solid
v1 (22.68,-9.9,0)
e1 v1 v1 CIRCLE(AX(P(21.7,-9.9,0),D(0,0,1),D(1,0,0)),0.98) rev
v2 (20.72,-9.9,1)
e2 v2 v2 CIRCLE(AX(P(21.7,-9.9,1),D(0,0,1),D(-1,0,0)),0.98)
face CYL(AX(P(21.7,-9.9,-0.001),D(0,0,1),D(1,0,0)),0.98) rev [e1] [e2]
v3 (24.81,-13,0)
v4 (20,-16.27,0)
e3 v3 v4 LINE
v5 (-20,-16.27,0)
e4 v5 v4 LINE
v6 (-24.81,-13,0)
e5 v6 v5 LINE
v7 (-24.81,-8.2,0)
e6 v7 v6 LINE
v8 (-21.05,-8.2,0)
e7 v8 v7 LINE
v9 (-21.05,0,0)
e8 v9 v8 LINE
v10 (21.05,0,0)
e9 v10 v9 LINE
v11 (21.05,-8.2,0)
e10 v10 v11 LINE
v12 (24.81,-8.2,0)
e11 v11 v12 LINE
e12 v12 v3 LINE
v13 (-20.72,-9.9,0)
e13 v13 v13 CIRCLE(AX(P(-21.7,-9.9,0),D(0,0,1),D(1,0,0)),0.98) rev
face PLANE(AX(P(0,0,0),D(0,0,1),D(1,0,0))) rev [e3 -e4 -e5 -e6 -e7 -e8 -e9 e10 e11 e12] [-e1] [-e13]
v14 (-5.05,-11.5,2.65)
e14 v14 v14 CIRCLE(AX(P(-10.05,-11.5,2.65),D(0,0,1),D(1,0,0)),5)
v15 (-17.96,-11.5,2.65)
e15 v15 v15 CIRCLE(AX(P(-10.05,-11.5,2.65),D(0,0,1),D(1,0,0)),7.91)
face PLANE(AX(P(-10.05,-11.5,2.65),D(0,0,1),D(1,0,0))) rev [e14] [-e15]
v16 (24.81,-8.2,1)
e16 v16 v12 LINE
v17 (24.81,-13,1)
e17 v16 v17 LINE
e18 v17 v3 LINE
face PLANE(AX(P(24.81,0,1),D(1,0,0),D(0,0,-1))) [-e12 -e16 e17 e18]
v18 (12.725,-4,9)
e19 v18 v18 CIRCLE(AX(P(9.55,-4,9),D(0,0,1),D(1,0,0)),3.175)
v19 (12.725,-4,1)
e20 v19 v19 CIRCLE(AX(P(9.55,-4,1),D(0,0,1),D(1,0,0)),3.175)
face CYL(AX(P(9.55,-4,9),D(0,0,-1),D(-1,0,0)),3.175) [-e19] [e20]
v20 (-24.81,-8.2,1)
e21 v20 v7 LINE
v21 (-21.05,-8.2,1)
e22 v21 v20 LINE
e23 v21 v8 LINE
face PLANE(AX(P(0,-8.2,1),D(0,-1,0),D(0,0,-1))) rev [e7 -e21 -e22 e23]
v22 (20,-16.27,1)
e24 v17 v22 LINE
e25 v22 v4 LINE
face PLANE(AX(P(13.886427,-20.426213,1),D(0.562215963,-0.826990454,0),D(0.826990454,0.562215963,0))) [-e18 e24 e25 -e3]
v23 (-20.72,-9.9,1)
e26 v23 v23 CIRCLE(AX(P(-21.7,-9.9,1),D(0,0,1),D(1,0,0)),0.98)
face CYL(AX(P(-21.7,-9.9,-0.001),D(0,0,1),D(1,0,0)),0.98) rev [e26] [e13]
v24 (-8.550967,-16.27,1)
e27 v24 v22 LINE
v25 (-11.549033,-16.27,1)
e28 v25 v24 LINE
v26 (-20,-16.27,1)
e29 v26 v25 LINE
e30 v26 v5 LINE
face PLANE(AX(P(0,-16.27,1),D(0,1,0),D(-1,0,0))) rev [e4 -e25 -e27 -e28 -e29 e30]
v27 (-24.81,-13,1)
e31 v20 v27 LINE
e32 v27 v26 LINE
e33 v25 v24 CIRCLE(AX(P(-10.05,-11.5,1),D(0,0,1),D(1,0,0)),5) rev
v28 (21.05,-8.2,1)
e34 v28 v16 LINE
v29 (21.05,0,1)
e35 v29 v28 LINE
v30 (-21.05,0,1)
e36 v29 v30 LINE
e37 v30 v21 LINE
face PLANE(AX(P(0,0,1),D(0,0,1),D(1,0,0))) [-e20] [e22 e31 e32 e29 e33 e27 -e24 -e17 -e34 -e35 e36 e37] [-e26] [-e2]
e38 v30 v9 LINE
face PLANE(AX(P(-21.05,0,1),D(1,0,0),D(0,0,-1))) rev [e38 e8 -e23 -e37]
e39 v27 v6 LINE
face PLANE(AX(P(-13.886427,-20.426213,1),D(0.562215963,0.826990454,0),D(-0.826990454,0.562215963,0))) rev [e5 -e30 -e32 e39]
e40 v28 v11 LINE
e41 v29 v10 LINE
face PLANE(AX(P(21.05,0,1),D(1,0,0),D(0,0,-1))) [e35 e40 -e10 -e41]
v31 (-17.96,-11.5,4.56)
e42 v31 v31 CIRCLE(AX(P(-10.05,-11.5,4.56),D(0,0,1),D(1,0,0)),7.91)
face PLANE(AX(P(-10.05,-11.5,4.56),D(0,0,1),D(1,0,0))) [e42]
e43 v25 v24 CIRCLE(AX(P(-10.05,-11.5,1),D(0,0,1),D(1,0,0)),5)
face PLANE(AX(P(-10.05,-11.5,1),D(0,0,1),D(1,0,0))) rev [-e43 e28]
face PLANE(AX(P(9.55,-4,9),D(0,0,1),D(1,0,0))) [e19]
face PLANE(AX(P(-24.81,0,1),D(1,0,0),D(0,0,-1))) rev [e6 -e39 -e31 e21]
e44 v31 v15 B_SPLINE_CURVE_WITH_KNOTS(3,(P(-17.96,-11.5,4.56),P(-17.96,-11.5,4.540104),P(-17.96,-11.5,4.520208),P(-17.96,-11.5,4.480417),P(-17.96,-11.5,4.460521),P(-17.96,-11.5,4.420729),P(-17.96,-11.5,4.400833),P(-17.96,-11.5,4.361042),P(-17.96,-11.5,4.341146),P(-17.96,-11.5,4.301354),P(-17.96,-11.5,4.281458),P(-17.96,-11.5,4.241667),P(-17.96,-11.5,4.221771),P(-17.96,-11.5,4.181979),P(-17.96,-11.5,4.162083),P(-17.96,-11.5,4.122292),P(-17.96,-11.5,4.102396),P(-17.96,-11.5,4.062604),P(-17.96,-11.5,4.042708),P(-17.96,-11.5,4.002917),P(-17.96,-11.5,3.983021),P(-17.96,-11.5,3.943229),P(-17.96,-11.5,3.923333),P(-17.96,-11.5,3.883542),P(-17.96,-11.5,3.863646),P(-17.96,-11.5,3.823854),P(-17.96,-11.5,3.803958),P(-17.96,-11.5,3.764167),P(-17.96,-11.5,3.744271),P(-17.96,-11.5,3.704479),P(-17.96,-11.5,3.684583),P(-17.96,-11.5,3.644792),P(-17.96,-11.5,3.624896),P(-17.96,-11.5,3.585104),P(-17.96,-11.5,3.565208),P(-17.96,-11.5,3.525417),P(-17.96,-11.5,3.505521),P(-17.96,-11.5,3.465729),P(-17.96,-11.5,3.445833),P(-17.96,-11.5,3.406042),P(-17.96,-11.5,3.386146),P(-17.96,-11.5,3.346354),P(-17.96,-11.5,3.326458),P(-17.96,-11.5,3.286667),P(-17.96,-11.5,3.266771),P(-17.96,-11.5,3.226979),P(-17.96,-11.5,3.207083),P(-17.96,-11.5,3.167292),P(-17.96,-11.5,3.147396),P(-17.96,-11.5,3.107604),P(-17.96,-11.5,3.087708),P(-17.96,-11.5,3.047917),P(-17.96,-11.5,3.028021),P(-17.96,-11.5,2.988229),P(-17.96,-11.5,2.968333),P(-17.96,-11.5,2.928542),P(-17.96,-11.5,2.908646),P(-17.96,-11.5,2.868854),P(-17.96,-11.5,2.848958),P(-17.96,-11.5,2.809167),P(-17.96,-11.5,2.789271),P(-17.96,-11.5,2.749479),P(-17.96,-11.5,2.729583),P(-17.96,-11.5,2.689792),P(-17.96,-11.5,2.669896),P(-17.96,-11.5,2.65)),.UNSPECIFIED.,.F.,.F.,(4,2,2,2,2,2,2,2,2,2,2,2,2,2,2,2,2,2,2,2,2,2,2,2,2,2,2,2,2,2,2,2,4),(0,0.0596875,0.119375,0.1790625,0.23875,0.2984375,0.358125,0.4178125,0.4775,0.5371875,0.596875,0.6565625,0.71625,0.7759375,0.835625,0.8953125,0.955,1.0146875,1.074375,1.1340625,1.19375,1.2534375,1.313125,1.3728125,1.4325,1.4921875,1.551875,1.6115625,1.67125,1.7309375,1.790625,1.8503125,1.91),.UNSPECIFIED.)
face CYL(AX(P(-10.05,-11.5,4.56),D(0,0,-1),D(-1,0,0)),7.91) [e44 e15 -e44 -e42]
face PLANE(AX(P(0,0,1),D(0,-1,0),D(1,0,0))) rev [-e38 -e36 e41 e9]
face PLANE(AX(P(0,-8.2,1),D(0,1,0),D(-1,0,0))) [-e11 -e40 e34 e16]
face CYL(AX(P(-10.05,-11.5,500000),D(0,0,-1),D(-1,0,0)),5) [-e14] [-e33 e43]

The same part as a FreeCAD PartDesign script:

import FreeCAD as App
import Part
import Sketcher
from FreeCAD import Vector


def add_polygon(sketch, points):
    """Adds a closed chain of lines whose ends are joined by coincident constraints."""
    first, n = sketch.GeometryCount, len(points)
    for a, b in zip(points, points[1:] + points[:1]):
        sketch.addGeometry(Part.LineSegment(App.Vector(*a, 0), App.Vector(*b, 0)), False)
    for i in range(n):
        sketch.addConstraint(Sketcher.Constraint("Coincident", first + i, 2, first + (i + 1) % n, 1))

doc = App.newDocument("Part")
body = doc.addObject("PartDesign::Body", "Body")

sketch1 = body.newObject("Sketcher::SketchObject", "Sketch")
sketch1.AttachmentSupport = (doc.getObject("XY_Plane"), [""])
sketch1.MapMode = "FlatFace"
add_polygon(sketch1, [(21.1, -8.2), (21.1, 0), (-21.1, 0), (-21.1, -8.2), (-24.8, -8.2), (-24.8, -13), (-20, -16.3), (20, -16.3), (24.8, -13), (24.8, -8.2)])
sketch1.addConstraint([
    Sketcher.Constraint("Vertical", 0),
    Sketcher.Constraint("Horizontal", 1),
    Sketcher.Constraint("Vertical", 2),
    Sketcher.Constraint("Horizontal", 3),
    Sketcher.Constraint("Vertical", 4),
    Sketcher.Constraint("Horizontal", 6),
    Sketcher.Constraint("Vertical", 8),
    Sketcher.Constraint("Horizontal", 9),
    Sketcher.Constraint("Symmetric", 0, 2, 1, 2, -1, 1),
    Sketcher.Constraint("Symmetric", 4, 2, 7, 2, -2),
    Sketcher.Constraint("Horizontal", 3, 2, 8, 2),
    Sketcher.Constraint("Equal", 5, 7),
    Sketcher.Constraint("DistanceX", 6, 1, 6, 2, 40.0),
    Sketcher.Constraint("DistanceX", 1, 2, 1, 1, 42.1),
    Sketcher.Constraint("DistanceY", 0, 1, 0, 2, 8.2),
    Sketcher.Constraint("DistanceY", 4, 2, 4, 1, 4.8),
    Sketcher.Constraint("DistanceX", 3, 2, 3, 1, 3.76),
    Sketcher.Constraint("DistanceY", 5, 2, -1, 1, 16.27),
])
pad1 = body.newObject("PartDesign::Pad", "Pad")
pad1.Profile = sketch1
pad1.Length = 1

sketch2 = body.newObject("Sketcher::SketchObject", "Sketch001")
sketch2.AttachmentSupport = (doc.getObject("XY_Plane"), [""])
sketch2.MapMode = "FlatFace"
sketch2.AttachmentOffset = App.Placement(Vector(0, 0, 1), App.Rotation())
sketch2.addGeometry(Part.Circle(Vector(-21.7, -9.9, 0), Vector(0, 0, 1), 1), False)
sketch2.addConstraint([
    Sketcher.Constraint("Diameter", 0, 1.96),
    Sketcher.Constraint("DistanceX", 0, 3, -1, 1, 21.7),
    Sketcher.Constraint("DistanceY", 0, 3, -1, 1, 9.9),
])
pocket1 = body.newObject("PartDesign::Pocket", "Pocket")
pocket1.Profile = sketch2
pocket1.Type = "UpToFirst"

sketch3 = body.newObject("Sketcher::SketchObject", "Sketch002")
sketch3.AttachmentSupport = (doc.getObject("XY_Plane"), [""])
sketch3.MapMode = "FlatFace"
sketch3.AttachmentOffset = App.Placement(Vector(0, 0, 1), App.Rotation())
sketch3.addGeometry(Part.Circle(Vector(21.7, -9.9, 0), Vector(0, 0, 1), 1), False)
sketch3.addConstraint([
    Sketcher.Constraint("Diameter", 0, 1.96),
    Sketcher.Constraint("DistanceX", -1, 1, 0, 3, 21.7),
    Sketcher.Constraint("DistanceY", 0, 3, -1, 1, 9.9),
])
pocket2 = body.newObject("PartDesign::Pocket", "Pocket001")
pocket2.Profile = sketch3
pocket2.Type = "UpToFirst"

sketch4 = body.newObject("Sketcher::SketchObject", "Sketch003")
sketch4.AttachmentSupport = (doc.getObject("XY_Plane"), [""])
sketch4.MapMode = "FlatFace"
sketch4.AttachmentOffset = App.Placement(Vector(0, 0, 1), App.Rotation())
sketch4.addGeometry(Part.Circle(Vector(9.6, -4, 0), Vector(0, 0, 1), 3.2), False)
sketch4.addConstraint([
    Sketcher.Constraint("Diameter", 0, 6.35),
    Sketcher.Constraint("DistanceY", 0, 3, -1, 1, 4.0),
    Sketcher.Constraint("DistanceX", -1, 1, 0, 3, 9.55),
])
pad2 = body.newObject("PartDesign::Pad", "Pad001")
pad2.Profile = sketch4
pad2.Length = 8
body2 = doc.addObject("PartDesign::Body", "Body001")
body2.AllowCompound = True

sketch5 = body2.newObject("Sketcher::SketchObject", "Sketch004")
sketch5.AttachmentSupport = (doc.getObject("XY_Plane001"), [""])
sketch5.MapMode = "FlatFace"
sketch5.AttachmentOffset = App.Placement(Vector(0, 0, 2.65), App.Rotation())
sketch5.addGeometry(Part.Circle(Vector(-10, -12, 0), Vector(0, 0, 1), 8), False)
sketch5.addConstraint([
    Sketcher.Constraint("Diameter", 0, 15.82),
    Sketcher.Constraint("DistanceY", 0, 3, -1, 1, 11.5),
    Sketcher.Constraint("DistanceX", 0, 3, -1, 1, 10.05),
])
pad3 = body2.newObject("PartDesign::Pad", "Pad002")
pad3.Profile = sketch5
pad3.Length = 1.91
doc.recompute()

boolean = body2.newObject("PartDesign::Boolean", "Boolean")
boolean.Type = "Fuse"
boolean.addObjects([body])

sketch6 = body2.newObject("Sketcher::SketchObject", "Sketch005")
sketch6.AttachmentSupport = (doc.getObject("XY_Plane001"), [""])
sketch6.MapMode = "FlatFace"
sketch6.AttachmentOffset = App.Placement(Vector(0, 0, 1), App.Rotation())
sketch6.addGeometry(Part.Circle(Vector(-10, -12, 0), Vector(0, 0, 1), 5), False)
sketch6.addConstraint([
    Sketcher.Constraint("Diameter", 0, 10.0),
    Sketcher.Constraint("DistanceY", 0, 3, -1, 1, 11.5),
    Sketcher.Constraint("DistanceX", 0, 3, -1, 1, 10.05),
])
pad4 = body2.newObject("PartDesign::Pad", "Pad003")
pad4.Profile = sketch6
pad4.Type = "UpToFirst"

doc.recompute()
